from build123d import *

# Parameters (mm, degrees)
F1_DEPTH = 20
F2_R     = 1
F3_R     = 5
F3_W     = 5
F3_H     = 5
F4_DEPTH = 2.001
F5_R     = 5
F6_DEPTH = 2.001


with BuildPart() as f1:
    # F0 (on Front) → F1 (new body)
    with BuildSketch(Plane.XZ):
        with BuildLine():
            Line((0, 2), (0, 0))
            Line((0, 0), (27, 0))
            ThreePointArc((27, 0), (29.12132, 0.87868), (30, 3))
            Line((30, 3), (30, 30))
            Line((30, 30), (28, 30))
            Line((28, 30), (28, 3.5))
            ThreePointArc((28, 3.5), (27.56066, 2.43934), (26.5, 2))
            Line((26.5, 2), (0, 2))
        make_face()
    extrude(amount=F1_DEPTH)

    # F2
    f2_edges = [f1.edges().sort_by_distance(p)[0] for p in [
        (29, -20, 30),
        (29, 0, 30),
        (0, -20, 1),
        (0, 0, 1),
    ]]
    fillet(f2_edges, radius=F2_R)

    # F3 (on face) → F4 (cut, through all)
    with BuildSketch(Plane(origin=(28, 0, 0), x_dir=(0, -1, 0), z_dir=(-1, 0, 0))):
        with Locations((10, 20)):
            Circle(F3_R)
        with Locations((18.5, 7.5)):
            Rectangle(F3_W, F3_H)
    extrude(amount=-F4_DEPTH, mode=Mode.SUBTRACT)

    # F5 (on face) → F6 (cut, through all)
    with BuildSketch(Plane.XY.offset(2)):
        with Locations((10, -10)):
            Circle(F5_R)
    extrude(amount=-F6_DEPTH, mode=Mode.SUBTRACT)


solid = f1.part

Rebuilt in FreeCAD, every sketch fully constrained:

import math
import FreeCAD as App
import Part
import Sketcher

V = App.Vector
Q = App.Units.Quantity


def edges_at(feature, points):
    """Names of the edges that pass closest to the given points."""
    edges = feature.Shape.Edges
    near = lambda p: min(range(len(edges)), key=lambda i: edges[i].distToShape(Part.Vertex(*p))[0])
    return sorted({f"Edge{near(p) + 1}" for p in points})


def add_polygon(sketch, points):
    """Adds a closed chain of lines whose ends are joined by coincident constraints."""
    first, n = sketch.GeometryCount, len(points)
    for a, b in zip(points, points[1:] + points[:1]):
        sketch.addGeometry(Part.LineSegment(App.Vector(*a, 0), App.Vector(*b, 0)), False)
    for i in range(n):
        sketch.addConstraint(Sketcher.Constraint("Coincident", first + i, 2, first + (i + 1) % n, 1))

doc = App.newDocument("Part")
body = doc.addObject("PartDesign::Body", "Body")

# Sketch on XZ plane
sketch1 = body.newObject("Sketcher::SketchObject", "Sketch")
sketch1.AttachmentSupport = (doc.getObject("XZ_Plane"), [""])
sketch1.MapMode = "FlatFace"
sketch1.addGeometry([
    Part.LineSegment(V(0, 2, 0), V(0, 0, 0)),  # 0
    Part.LineSegment(V(0, 0, 0), V(27, 0, 0)),  # 1
    Part.ArcOfCircle(Part.Circle(V(26.999999, 3.000001, 0), V(0, 0, 1), 3.000001), math.radians(-89.999978), math.radians(-0.000022)),  # 2
    Part.LineSegment(V(30, 3, 0), V(30, 30, 0)),  # 3
    Part.LineSegment(V(30, 30, 0), V(28, 30, 0)),  # 4
    Part.LineSegment(V(28, 30, 0), V(28, 3.5, 0)),  # 5
    Part.ArcOfCircle(Part.Circle(V(26.499999, 3.500001, 0), V(0, 0, 1), 1.500001), math.radians(-89.999978), math.radians(-0.000022)),  # 6
    Part.LineSegment(V(26.5, 2, 0), V(0, 2, 0)),  # 7
], False)
sketch1.addConstraint([
    Sketcher.Constraint("Coincident", 0, 2, 1, 1),
    Sketcher.Constraint("Tangent", 1, 2, 2, 1),
    Sketcher.Constraint("Tangent", 2, 2, 3, 1),
    Sketcher.Constraint("Coincident", 3, 2, 4, 1),
    Sketcher.Constraint("Coincident", 4, 2, 5, 1),
    Sketcher.Constraint("Tangent", 5, 2, 6, 2),
    Sketcher.Constraint("Tangent", 6, 1, 7, 1),
    Sketcher.Constraint("Coincident", 7, 2, 0, 1),
    Sketcher.Constraint("Vertical", 0),
    Sketcher.Constraint("Horizontal", 1),
    Sketcher.Constraint("Vertical", 3),
    Sketcher.Constraint("Horizontal", 4),
    Sketcher.Constraint("Vertical", 5),
    Sketcher.Constraint("Horizontal", 7),
    Sketcher.Constraint("Coincident", 0, 2, -1, 1),
    Sketcher.Constraint("Equal", 4, 0),
    Sketcher.Constraint("Equal", 1, 3),
    Sketcher.Constraint("Radius", 2, Q("3.000001 mm")),
    Sketcher.Constraint("Radius", 6, Q("1.500001 mm")),
    Sketcher.Constraint("DistanceX", 1, 1, 1, 2, Q("27 mm")),
    Sketcher.Constraint("DistanceX", 4, 2, 4, 1, Q("2 mm")),
])
pad1 = body.newObject("PartDesign::Pad", "Pad")
pad1.Profile = sketch1
pad1.Length = 20
doc.recompute()

fillet = body.newObject("PartDesign::Fillet", "Fillet")
fillet.Base = (pad1, edges_at(pad1, [
    (29, -20, 30),
    (29, 0, 30),
    (0, -20, 1),
    (0, 0, 1),
]))
fillet.Radius = 1

# Sketch on YZ plane
sketch2 = body.newObject("Sketcher::SketchObject", "Sketch001")
sketch2.AttachmentSupport = (doc.getObject("YZ_Plane"), [""])
sketch2.MapMode = "FlatFace"
sketch2.AttachmentOffset = App.Placement(V(0, 0, 28), App.Rotation())
sketch2.addGeometry(Part.Circle(V(-10, 20, 0), V(0, 0, 1), 5), False)  # 0
add_polygon(sketch2, [(-16, 10), (-16, 5), (-21, 5), (-21, 10)])  # lines 1-4
sketch2.addConstraint([
    Sketcher.Constraint("Vertical", 1),
    Sketcher.Constraint("Horizontal", 2),
    Sketcher.Constraint("Vertical", 3),
    Sketcher.Constraint("Horizontal", 4),
    Sketcher.Constraint("Equal", 4, 1),
    Sketcher.Constraint("Diameter", 0, Q("10 mm")),
    Sketcher.Constraint("DistanceX", 2, 2, 2, 1, Q("5 mm")),
    Sketcher.Constraint("DistanceX", 0, 3, -1, 1, Q("10 mm")),
    Sketcher.Constraint("DistanceY", -1, 1, 0, 3, Q("20 mm")),
    Sketcher.Constraint("DistanceX", 1, 2, -1, 1, Q("16 mm")),
    Sketcher.Constraint("DistanceY", -1, 1, 1, 2, Q("5 mm")),
])
pocket1 = body.newObject("PartDesign::Pocket", "Pocket")
pocket1.Profile = sketch2
pocket1.Type = "ThroughAll"
pocket1.Reversed = True

# Sketch on XY plane
sketch3 = body.newObject("Sketcher::SketchObject", "Sketch002")
sketch3.AttachmentSupport = (doc.getObject("XY_Plane"), [""])
sketch3.MapMode = "FlatFace"
sketch3.AttachmentOffset = App.Placement(V(0, 0, 2), App.Rotation())
sketch3.addGeometry(Part.Circle(V(10, -10, 0), V(0, 0, 1), 5), False)
sketch3.addConstraint([
    Sketcher.Constraint("Diameter", 0, Q("10 mm")),
    Sketcher.Constraint("DistanceX", -1, 1, 0, 3, Q("10 mm")),
    Sketcher.Constraint("DistanceY", 0, 3, -1, 1, Q("10 mm")),
])
pocket2 = body.newObject("PartDesign::Pocket", "Pocket001")
pocket2.Profile = sketch3
pocket2.Type = "ThroughAll"

doc.recompute()
